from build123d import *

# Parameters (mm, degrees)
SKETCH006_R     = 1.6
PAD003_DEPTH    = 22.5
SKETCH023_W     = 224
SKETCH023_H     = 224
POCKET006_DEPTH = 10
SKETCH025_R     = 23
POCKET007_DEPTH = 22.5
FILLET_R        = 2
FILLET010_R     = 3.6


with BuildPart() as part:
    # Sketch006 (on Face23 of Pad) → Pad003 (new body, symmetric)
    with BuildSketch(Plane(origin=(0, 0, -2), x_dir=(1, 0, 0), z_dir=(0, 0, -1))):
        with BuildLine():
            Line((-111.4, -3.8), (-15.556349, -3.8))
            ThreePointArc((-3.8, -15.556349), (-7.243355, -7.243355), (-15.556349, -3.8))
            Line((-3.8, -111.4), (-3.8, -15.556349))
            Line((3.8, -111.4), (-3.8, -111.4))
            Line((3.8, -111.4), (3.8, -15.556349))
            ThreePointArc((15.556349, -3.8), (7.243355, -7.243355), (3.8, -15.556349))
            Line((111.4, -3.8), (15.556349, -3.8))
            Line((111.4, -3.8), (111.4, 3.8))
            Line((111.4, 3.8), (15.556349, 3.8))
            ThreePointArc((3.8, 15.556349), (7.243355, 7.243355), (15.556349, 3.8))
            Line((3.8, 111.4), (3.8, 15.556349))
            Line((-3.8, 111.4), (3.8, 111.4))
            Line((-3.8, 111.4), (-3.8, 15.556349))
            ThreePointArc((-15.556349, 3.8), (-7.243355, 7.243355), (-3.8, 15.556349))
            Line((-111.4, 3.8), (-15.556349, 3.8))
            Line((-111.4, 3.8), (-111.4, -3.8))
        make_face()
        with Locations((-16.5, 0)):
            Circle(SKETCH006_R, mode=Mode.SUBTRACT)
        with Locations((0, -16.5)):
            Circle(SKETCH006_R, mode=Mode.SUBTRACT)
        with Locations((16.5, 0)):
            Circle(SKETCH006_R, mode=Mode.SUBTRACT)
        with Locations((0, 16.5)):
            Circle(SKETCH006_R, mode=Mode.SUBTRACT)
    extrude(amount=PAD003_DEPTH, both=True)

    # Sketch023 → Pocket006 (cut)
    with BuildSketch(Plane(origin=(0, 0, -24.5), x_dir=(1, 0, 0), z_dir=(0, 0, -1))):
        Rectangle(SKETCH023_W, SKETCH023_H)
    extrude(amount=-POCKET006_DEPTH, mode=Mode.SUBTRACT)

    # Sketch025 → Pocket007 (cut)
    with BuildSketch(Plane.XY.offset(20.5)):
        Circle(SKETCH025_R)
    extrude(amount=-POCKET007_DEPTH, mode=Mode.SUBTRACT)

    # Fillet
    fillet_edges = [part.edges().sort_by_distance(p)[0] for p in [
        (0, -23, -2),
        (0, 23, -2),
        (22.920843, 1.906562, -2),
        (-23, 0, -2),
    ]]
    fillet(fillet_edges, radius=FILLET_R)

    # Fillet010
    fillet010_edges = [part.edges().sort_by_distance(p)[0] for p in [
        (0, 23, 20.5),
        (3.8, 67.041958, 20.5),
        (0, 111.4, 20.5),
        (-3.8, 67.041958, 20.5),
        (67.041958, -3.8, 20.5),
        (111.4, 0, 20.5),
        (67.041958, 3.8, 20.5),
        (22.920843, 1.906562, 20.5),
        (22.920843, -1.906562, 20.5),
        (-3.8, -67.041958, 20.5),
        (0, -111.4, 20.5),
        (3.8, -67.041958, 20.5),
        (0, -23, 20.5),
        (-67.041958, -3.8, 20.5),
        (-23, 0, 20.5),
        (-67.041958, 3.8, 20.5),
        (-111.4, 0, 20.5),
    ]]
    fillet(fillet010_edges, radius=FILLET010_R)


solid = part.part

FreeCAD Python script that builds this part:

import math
import FreeCAD as App
import Part
import Sketcher

V = App.Vector


def edges_at(feature, points):
    """Names of the edges that pass closest to the given points."""
    edges = feature.Shape.Edges
    near = lambda p: min(range(len(edges)), key=lambda i: edges[i].distToShape(Part.Vertex(*p))[0])
    return sorted({f"Edge{near(p) + 1}" for p in points})


def add_polygon(sketch, points):
    """Adds a closed chain of lines whose ends are joined by coincident constraints."""
    first, n = sketch.GeometryCount, len(points)
    for a, b in zip(points, points[1:] + points[:1]):
        sketch.addGeometry(Part.LineSegment(App.Vector(*a, 0), App.Vector(*b, 0)), False)
    for i in range(n):
        sketch.addConstraint(Sketcher.Constraint("Coincident", first + i, 2, first + (i + 1) % n, 1))

doc = App.newDocument("Part")
body = doc.addObject("PartDesign::Body", "Body")

sketch1 = doc.addObject("Sketcher::SketchObject", "Sketch")
body.addObject(sketch1)
sketch1.AttachmentSupport = (doc.XY_Plane, [""])
sketch1.MapMode = "FlatFace"
sketch1.AttachmentOffset = App.Placement(V(0, 0, -2), App.Rotation())
sketch1.addGeometry([
    Part.LineSegment(V(-111.4, 3.8, 0), V(-15.6, 3.8, 0)),
    Part.ArcOfCircle(Part.Circle(V(-15.6, 15.6, 0), V(0, 0, 1), 11.8), math.radians(-90), math.radians(0)),
    Part.LineSegment(V(-3.8, 15.6, 0), V(-3.8, 111.4, 0)),
    Part.LineSegment(V(-3.8, 111.4, 0), V(3.8, 111.4, 0)),
    Part.LineSegment(V(3.8, 111.4, 0), V(3.8, 15.6, 0)),
    Part.ArcOfCircle(Part.Circle(V(15.6, 15.6, 0), V(0, 0, 1), 11.8), math.radians(-180), math.radians(-90)),
    Part.LineSegment(V(15.6, 3.8, 0), V(111.4, 3.8, 0)),
    Part.LineSegment(V(111.4, 3.8, 0), V(111.4, -3.8, 0)),
    Part.LineSegment(V(111.4, -3.8, 0), V(15.6, -3.8, 0)),
    Part.ArcOfCircle(Part.Circle(V(15.6, -15.6, 0), V(0, 0, 1), 11.8), math.radians(90), math.radians(180)),
    Part.LineSegment(V(3.8, -15.6, 0), V(3.8, -111.4, 0)),
    Part.LineSegment(V(3.8, -111.4, 0), V(-3.8, -111.4, 0)),
    Part.LineSegment(V(-3.8, -111.4, 0), V(-3.8, -15.6, 0)),
    Part.ArcOfCircle(Part.Circle(V(-15.6, -15.6, 0), V(0, 0, 1), 11.8), math.radians(0), math.radians(90)),
    Part.LineSegment(V(-15.6, -3.8, 0), V(-111.4, -3.8, 0)),
    Part.LineSegment(V(-111.4, -3.8, 0), V(-111.4, 3.8, 0)),
    Part.Circle(V(0, 16.5, 0), V(0, 0, 1), 1.6),
    Part.Circle(V(-16.5, 0, 0), V(0, 0, 1), 1.6),
    Part.Circle(V(16.5, 0, 0), V(0, 0, 1), 1.6),
    Part.Circle(V(0, -16.5, 0), V(0, 0, 1), 1.6),
], False)
sketch1.addConstraint([
    Sketcher.Constraint("Tangent", 0, 2, 1, 1),
    Sketcher.Constraint("Tangent", 1, 2, 2, 1),
    Sketcher.Constraint("Coincident", 2, 2, 3, 1),
    Sketcher.Constraint("Coincident", 3, 2, 4, 1),
    Sketcher.Constraint("Tangent", 4, 2, 5, 1),
    Sketcher.Constraint("Tangent", 5, 2, 6, 1),
    Sketcher.Constraint("Coincident", 6, 2, 7, 1),
    Sketcher.Constraint("Coincident", 7, 2, 8, 1),
    Sketcher.Constraint("Tangent", 8, 2, 9, 1),
    Sketcher.Constraint("Tangent", 9, 2, 10, 1),
    Sketcher.Constraint("Coincident", 10, 2, 11, 1),
    Sketcher.Constraint("Coincident", 11, 2, 12, 1),
    Sketcher.Constraint("Tangent", 12, 2, 13, 1),
    Sketcher.Constraint("Tangent", 13, 2, 14, 1),
    Sketcher.Constraint("Coincident", 14, 2, 15, 1),
    Sketcher.Constraint("Coincident", 15, 2, 0, 1),
    Sketcher.Constraint("Horizontal", 0),
    Sketcher.Constraint("Vertical", 2),
    Sketcher.Constraint("Horizontal", 3),
    Sketcher.Constraint("Vertical", 4),
    Sketcher.Constraint("Horizontal", 6),
    Sketcher.Constraint("Vertical", 7),
    Sketcher.Constraint("Horizontal", 8),
    Sketcher.Constraint("Vertical", 10),
    Sketcher.Constraint("Horizontal", 11),
    Sketcher.Constraint("Vertical", 12),
    Sketcher.Constraint("Horizontal", 14),
    Sketcher.Constraint("Vertical", 15),
    Sketcher.Constraint("Equal", 1, 5),
    Sketcher.Constraint("Equal", 5, 9),
    Sketcher.Constraint("Equal", 9, 13),
    Sketcher.Constraint("Equal", 16, 17),
    Sketcher.Constraint("Equal", 17, 18),
    Sketcher.Constraint("Equal", 18, 19),
    Sketcher.Constraint("Symmetric", 1, 3, 9, 3, -1, 1),
    Sketcher.Constraint("Symmetric", 5, 3, 13, 3, -1, 1),
    Sketcher.Constraint("Symmetric", 17, 3, 18, 3, -1, 1),
    Sketcher.Constraint("Symmetric", 16, 3, 19, 3, -1, 1),
    Sketcher.Constraint("Symmetric", 1, 3, 5, 3, -2),
    Sketcher.Constraint("PointOnObject", 16, 3, -2),
    Sketcher.Constraint("PointOnObject", 17, 3, -1),
    Sketcher.Constraint("Equal", 0, 6),
    Sketcher.Constraint("Equal", 14, 2),
    Sketcher.Constraint("Equal", 11, 7),
    Sketcher.Constraint("Equal", 4, 10),
    Sketcher.Constraint("Diameter", 16, 3.2),
    Sketcher.Constraint("DistanceX", 3, 1, 3, 2, 7.6),
    Sketcher.Constraint("DistanceX", 17, 3, 18, 3, 33.0),
    Sketcher.Constraint("DistanceY", 19, 3, 16, 3, 33.0),
    Sketcher.Constraint("DistanceY", -1, 1, 2, 2, 111.4),
    Sketcher.Constraint("Radius", 1, 11.756349),
])
pad1 = doc.addObject("PartDesign::Pad", "Pad")
body.addObject(pad1)
pad1.Profile = sketch1
pad1.Length = 45
pad1.Midplane = True

sketch2 = doc.addObject("Sketcher::SketchObject", "Sketch001")
body.addObject(sketch2)
sketch2.AttachmentSupport = (doc.XY_Plane, [""])
sketch2.MapMode = "FlatFace"
sketch2.AttachmentOffset = App.Placement(V(0, 0, -24.5), App.Rotation())
add_polygon(sketch2, [(-112, -112), (-112, 112), (112, 112), (112, -112)])
sketch2.addConstraint([
    Sketcher.Constraint("Vertical", 0),
    Sketcher.Constraint("Horizontal", 1),
    Sketcher.Constraint("Vertical", 2),
    Sketcher.Constraint("Horizontal", 3),
    Sketcher.Constraint("Symmetric", 0, 2, 2, 2, -1, 1),
    Sketcher.Constraint("Equal", 3, 0),
    Sketcher.Constraint("DistanceX", 1, 1, 1, 2, 224.0),
])
pocket1 = doc.addObject("PartDesign::Pocket", "Pocket")
body.addObject(pocket1)
pocket1.Profile = sketch2
pocket1.Length = 10
pocket1.Reversed = True

sketch3 = doc.addObject("Sketcher::SketchObject", "Sketch002")
body.addObject(sketch3)
sketch3.AttachmentSupport = (doc.XY_Plane, [""])
sketch3.MapMode = "FlatFace"
sketch3.AttachmentOffset = App.Placement(V(0, 0, 20.5), App.Rotation())
sketch3.addGeometry(Part.Circle(V(0, 0, 0), V(0, 0, 1), 23), False)
sketch3.addConstraint([
    Sketcher.Constraint("Coincident", 0, 3, -1, 1),
    Sketcher.Constraint("Diameter", 0, 46.0),
])
pocket2 = doc.addObject("PartDesign::Pocket", "Pocket001")
body.addObject(pocket2)
pocket2.Profile = sketch3
pocket2.Length = 22.5
doc.recompute()

fillet = doc.addObject("PartDesign::Fillet", "Fillet")
body.addObject(fillet)
fillet.Base = (pocket2, edges_at(pocket2, [
    (0, -23, -2),
    (0, 23, -2),
    (23, 0, -2),
    (-23, 0, -2),
]))
fillet.Radius = 2
doc.recompute()

fillet2 = doc.addObject("PartDesign::Fillet", "Fillet001")
body.addObject(fillet2)
fillet2.Base = (fillet, edges_at(fillet, [
    (0, 23, 20.5),
    (3.8, 67.042, 20.5),
    (0, 111.4, 20.5),
    (-3.8, 67.042, 20.5),
    (67.042, -3.8, 20.5),
    (111.4, 0, 20.5),
    (67.042, 3.8, 20.5),
    (23, 0, 20.5),
    (23, 0, 20.5),
    (-3.8, -67.042, 20.5),
    (0, -111.4, 20.5),
    (3.8, -67.042, 20.5),
    (0, -23, 20.5),
    (-67.042, -3.8, 20.5),
    (-23, 0, 20.5),
    (-67.042, 3.8, 20.5),
    (-111.4, 0, 20.5),
]))
fillet2.Radius = 3.6

doc.recompute()
